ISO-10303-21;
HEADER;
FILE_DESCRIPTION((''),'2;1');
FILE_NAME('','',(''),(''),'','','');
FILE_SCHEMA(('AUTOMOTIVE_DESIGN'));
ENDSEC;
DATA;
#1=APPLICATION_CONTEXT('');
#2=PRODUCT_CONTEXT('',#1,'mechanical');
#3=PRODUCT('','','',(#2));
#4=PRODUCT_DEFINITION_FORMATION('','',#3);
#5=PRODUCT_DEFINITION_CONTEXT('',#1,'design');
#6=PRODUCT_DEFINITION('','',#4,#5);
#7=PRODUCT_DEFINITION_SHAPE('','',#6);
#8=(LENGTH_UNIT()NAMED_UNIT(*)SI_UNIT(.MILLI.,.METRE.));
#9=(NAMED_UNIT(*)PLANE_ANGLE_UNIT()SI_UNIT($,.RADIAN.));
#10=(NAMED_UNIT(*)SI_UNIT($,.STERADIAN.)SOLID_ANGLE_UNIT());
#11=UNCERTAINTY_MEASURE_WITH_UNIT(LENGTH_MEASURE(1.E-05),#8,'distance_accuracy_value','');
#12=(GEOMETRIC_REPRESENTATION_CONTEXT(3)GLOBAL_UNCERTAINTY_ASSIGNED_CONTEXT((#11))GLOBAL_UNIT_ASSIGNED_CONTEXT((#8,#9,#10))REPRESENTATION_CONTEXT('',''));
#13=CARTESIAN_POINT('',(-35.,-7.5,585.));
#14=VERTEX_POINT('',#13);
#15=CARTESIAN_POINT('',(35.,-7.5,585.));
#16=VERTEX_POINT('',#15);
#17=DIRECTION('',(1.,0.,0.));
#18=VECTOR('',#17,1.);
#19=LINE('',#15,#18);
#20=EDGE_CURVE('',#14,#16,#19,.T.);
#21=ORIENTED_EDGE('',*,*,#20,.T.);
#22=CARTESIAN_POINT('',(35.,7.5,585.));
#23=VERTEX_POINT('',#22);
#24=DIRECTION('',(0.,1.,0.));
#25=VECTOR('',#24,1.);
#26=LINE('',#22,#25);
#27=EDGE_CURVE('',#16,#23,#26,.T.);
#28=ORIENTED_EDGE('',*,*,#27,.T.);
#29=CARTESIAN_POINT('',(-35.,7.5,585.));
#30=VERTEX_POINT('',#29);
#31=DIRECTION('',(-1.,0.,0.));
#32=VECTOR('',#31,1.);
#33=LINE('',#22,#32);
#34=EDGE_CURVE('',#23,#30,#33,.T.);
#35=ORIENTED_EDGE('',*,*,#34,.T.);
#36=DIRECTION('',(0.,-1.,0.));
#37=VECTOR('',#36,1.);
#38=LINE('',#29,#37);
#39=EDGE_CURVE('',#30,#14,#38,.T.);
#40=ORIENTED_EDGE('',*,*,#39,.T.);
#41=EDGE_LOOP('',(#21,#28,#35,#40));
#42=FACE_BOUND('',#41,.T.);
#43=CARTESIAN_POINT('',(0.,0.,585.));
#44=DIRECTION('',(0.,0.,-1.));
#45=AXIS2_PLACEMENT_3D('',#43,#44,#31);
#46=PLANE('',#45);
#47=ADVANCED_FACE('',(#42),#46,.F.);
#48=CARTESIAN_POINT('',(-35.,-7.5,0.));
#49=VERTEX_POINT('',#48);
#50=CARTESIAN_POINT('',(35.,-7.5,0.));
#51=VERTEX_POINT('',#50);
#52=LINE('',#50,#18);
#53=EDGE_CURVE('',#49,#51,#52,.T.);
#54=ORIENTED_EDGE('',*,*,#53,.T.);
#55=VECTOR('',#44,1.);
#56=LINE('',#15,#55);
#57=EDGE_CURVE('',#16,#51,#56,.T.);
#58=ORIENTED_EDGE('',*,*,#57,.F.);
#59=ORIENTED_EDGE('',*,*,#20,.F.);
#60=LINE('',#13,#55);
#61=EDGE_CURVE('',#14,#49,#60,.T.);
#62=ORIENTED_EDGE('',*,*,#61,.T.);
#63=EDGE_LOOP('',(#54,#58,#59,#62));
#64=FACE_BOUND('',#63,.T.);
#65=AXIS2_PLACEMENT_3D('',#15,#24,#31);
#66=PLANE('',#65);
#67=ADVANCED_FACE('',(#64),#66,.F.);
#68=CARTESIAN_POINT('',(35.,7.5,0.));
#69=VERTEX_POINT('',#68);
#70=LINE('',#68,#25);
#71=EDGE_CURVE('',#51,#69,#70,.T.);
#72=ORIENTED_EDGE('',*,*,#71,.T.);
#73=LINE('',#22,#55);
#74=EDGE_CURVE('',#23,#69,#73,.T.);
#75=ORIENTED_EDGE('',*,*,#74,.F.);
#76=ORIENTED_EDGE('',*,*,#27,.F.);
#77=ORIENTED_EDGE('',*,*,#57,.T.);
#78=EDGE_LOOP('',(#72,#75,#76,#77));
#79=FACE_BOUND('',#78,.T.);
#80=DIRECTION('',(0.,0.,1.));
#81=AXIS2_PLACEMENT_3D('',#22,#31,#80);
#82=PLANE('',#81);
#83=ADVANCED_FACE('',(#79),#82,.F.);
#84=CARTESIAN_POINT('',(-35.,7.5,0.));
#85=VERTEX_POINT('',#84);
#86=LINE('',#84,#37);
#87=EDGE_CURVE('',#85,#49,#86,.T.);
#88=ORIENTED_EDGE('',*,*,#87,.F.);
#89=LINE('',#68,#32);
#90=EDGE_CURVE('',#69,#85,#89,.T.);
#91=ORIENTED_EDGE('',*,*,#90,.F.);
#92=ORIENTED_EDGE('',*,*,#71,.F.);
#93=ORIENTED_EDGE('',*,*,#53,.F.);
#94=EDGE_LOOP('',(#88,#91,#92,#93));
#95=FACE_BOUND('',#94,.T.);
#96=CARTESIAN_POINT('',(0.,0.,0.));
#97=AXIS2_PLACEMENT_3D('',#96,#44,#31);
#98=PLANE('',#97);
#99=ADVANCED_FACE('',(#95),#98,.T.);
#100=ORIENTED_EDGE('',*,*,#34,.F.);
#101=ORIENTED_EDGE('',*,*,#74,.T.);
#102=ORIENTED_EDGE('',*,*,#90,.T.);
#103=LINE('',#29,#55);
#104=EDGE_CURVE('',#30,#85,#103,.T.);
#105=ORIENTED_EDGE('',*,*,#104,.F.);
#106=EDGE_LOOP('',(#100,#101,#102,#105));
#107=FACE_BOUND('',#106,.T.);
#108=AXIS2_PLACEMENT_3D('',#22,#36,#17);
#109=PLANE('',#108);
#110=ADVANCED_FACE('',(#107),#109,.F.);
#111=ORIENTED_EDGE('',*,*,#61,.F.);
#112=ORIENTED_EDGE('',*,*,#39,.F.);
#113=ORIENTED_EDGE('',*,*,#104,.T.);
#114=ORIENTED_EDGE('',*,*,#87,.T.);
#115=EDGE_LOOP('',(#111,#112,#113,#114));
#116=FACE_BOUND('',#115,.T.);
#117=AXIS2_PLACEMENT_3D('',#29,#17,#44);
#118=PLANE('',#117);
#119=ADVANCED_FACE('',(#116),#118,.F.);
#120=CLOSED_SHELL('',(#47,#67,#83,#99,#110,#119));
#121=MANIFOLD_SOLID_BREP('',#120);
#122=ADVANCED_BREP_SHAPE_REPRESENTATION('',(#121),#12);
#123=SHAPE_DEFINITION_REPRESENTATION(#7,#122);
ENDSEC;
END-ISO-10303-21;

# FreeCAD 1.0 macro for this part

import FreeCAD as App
import Part
import Sketcher


def add_polygon(sketch, points):
    """Adds a closed chain of lines whose ends are joined by coincident constraints."""
    first, n = sketch.GeometryCount, len(points)
    for a, b in zip(points, points[1:] + points[:1]):
        sketch.addGeometry(Part.LineSegment(App.Vector(*a, 0), App.Vector(*b, 0)), False)
    for i in range(n):
        sketch.addConstraint(Sketcher.Constraint("Coincident", first + i, 2, first + (i + 1) % n, 1))

doc = App.newDocument("Part")
body = doc.addObject("PartDesign::Body", "Body")

# Sketch on XY plane
sketch1 = body.newObject("Sketcher::SketchObject", "Sketch")
sketch1.AttachmentSupport = (doc.getObject("XY_Plane"), [""])
sketch1.MapMode = "FlatFace"
add_polygon(sketch1, [(-35, 7.5), (-35, -7.5), (35, -7.5), (35, 7.5)])  # lines 0-3
sketch1.addConstraint(Sketcher.Constraint("Vertical", 0))
sketch1.addConstraint(Sketcher.Constraint("Horizontal", 1))
sketch1.addConstraint(Sketcher.Constraint("Vertical", 2))
sketch1.addConstraint(Sketcher.Constraint("Horizontal", 3))
sketch1.addConstraint(Sketcher.Constraint("Symmetric", 0, 2, 2, 2, -1, 1))
sketch1.addConstraint(Sketcher.Constraint("DistanceX", 1, 1, 1, 2, 70.0))
sketch1.addConstraint(Sketcher.Constraint("DistanceY", 0, 2, 0, 1, 15.0))
pad1 = body.newObject("PartDesign::Pad", "Pad")
pad1.Profile = sketch1
pad1.Length = 585

doc.recompute()
